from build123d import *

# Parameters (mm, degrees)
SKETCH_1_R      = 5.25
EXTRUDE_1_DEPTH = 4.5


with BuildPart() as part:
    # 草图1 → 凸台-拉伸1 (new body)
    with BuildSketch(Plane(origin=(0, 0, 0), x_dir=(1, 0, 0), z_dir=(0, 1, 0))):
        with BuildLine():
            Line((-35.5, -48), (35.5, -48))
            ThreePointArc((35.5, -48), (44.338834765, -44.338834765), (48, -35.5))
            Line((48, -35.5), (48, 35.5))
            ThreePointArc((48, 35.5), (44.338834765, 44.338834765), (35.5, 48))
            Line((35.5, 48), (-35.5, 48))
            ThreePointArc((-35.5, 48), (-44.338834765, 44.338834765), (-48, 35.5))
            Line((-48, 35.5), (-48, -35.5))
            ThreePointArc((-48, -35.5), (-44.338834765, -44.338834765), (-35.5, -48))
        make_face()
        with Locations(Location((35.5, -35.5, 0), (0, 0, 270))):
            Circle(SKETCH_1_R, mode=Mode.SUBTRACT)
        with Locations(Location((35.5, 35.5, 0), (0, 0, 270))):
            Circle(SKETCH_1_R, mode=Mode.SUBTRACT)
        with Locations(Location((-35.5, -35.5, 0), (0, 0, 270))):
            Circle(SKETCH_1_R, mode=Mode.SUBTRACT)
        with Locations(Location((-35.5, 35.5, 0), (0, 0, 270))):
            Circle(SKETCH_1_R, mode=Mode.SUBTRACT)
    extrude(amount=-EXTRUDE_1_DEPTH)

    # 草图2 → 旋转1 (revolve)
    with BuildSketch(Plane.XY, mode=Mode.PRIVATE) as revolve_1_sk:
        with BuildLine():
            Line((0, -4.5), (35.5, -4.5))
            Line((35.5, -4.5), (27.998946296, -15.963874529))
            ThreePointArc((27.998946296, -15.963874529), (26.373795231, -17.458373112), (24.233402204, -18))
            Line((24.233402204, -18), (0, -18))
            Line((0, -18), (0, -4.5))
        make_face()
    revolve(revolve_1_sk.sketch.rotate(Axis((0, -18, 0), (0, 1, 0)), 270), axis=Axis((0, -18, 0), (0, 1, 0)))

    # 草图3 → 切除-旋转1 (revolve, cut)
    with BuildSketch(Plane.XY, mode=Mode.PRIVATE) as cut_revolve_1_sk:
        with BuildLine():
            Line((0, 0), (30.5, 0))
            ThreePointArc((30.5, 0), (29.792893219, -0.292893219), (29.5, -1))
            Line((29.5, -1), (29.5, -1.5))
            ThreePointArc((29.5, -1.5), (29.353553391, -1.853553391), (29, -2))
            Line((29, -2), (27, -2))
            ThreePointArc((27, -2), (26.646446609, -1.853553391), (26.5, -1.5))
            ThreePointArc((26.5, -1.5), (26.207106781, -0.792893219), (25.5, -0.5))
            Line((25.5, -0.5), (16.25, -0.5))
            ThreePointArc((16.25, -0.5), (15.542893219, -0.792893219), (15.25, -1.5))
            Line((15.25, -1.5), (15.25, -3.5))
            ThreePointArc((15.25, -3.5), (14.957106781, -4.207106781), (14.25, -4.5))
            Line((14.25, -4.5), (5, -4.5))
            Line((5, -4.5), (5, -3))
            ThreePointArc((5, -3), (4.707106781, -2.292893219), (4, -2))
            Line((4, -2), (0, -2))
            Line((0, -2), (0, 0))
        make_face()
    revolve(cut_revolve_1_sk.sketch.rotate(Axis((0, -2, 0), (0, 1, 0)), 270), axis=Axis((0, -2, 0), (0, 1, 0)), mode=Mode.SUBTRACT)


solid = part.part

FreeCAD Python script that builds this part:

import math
import FreeCAD as App
import Part
import Sketcher

V = App.Vector

doc = App.newDocument("Part")
params = doc.addObject("Spreadsheet::Sheet", "Params")
for row, (alias, value) in enumerate([
    ("sketch1_diameter", "10.5 mm"),
    ("sketch1_radius", "12.5 mm"),
    ("sketch1_width", "71 mm"),
    ("pad1_length", "4.5 mm"),
    ("sketch2_radius", "4.5 mm"),
    ("sketch2_width", "35.5 mm"),
    ("sketch2_height", "13.5 mm"),
    ("revolution_angle", "360 deg"),
    ("sketch3_radius", "1 mm"),
    ("sketch3_radius2", "0.5 mm"),
    ("sketch3_width", "4 mm"),
    ("sketch3_width2", "2 mm"),
    ("sketch3_width3", "30.5 mm"),
    ("groove_angle", "360 deg"),
], start=1):
    params.set(f"A{row}", alias)
    params.set(f"B{row}", "=" + value)
    params.setAlias(f"B{row}", alias)

body = doc.addObject("PartDesign::Body", "Body")

# Sketch on XZ plane
sketch1 = body.newObject("Sketcher::SketchObject", "Sketch")
sketch1.AttachmentSupport = (doc.getObject("XZ_Plane"), [""])
sketch1.MapMode = "FlatFace"
sketch1.addGeometry([
    Part.LineSegment(V(-36, 48, 0), V(36, 48, 0)),  # 0
    Part.ArcOfCircle(Part.Circle(V(36, 36, 0), V(0, 0, 1), 12), math.radians(0), math.radians(90)),  # 1
    Part.LineSegment(V(48, 36, 0), V(48, -36, 0)),  # 2
    Part.ArcOfCircle(Part.Circle(V(36, -36, 0), V(0, 0, 1), 12), math.radians(-90), math.radians(0)),  # 3
    Part.LineSegment(V(36, -48, 0), V(-36, -48, 0)),  # 4
    Part.ArcOfCircle(Part.Circle(V(-36, -36, 0), V(0, 0, 1), 12), math.radians(180), math.radians(270)),  # 5
    Part.LineSegment(V(-48, -36, 0), V(-48, 36, 0)),  # 6
    Part.ArcOfCircle(Part.Circle(V(-36, 36, 0), V(0, 0, 1), 12), math.radians(90), math.radians(180)),  # 7
    Part.Circle(V(-36, 36, 0), V(0, 0, 1), 5),  # 8
    Part.Circle(V(36, 36, 0), V(0, 0, 1), 5),  # 9
    Part.Circle(V(-36, -36, 0), V(0, 0, 1), 5),  # 10
    Part.Circle(V(36, -36, 0), V(0, 0, 1), 5),  # 11
], False)
sketch1.addConstraint([
    Sketcher.Constraint("Tangent", 0, 2, 1, 2),
    Sketcher.Constraint("Tangent", 1, 1, 2, 1),
    Sketcher.Constraint("Tangent", 2, 2, 3, 2),
    Sketcher.Constraint("Tangent", 3, 1, 4, 1),
    Sketcher.Constraint("Tangent", 4, 2, 5, 2),
    Sketcher.Constraint("Tangent", 5, 1, 6, 1),
    Sketcher.Constraint("Tangent", 6, 2, 7, 2),
    Sketcher.Constraint("Tangent", 7, 1, 0, 1),
    Sketcher.Constraint("Horizontal", 0),
    Sketcher.Constraint("Vertical", 2),
    Sketcher.Constraint("Horizontal", 4),
    Sketcher.Constraint("Vertical", 6),
    Sketcher.Constraint("Coincident", 8, 3, 7, 3),
    Sketcher.Constraint("Coincident", 9, 3, 1, 3),
    Sketcher.Constraint("Coincident", 10, 3, 5, 3),
    Sketcher.Constraint("Coincident", 11, 3, 3, 3),
    Sketcher.Constraint("Equal", 1, 3),
    Sketcher.Constraint("Equal", 3, 5),
    Sketcher.Constraint("Equal", 5, 7),
    Sketcher.Constraint("Equal", 8, 9),
    Sketcher.Constraint("Equal", 9, 10),
    Sketcher.Constraint("Equal", 10, 11),
    Sketcher.Constraint("Symmetric", 1, 3, 5, 3, -1, 1),
    Sketcher.Constraint("Equal", 4, 2),
    Sketcher.Constraint("Diameter", 8, 10.5),
    Sketcher.Constraint("Radius", 1, 12.5),
    Sketcher.Constraint("DistanceX", 0, 1, 0, 2, 71.0),
])
sketch1.setExpression("Constraints[24]", "Params.sketch1_diameter")
sketch1.setExpression("Constraints[25]", "Params.sketch1_radius")
sketch1.setExpression("Constraints[26]", "Params.sketch1_width")
pad1 = body.newObject("PartDesign::Pad", "Pad")
pad1.Profile = sketch1
pad1.setExpression("Length", "Params.pad1_length")

# Sketch on XY plane
sketch2 = body.newObject("Sketcher::SketchObject", "Sketch001")
sketch2.AttachmentSupport = (doc.getObject("XY_Plane"), [""])
sketch2.MapMode = "FlatFace"
sketch2.addGeometry([
    Part.LineSegment(V(35.5, -4.5, 0), V(0, -4.5, 0)),  # 0
    Part.LineSegment(V(0, -4.5, 0), V(0, -18, 0)),  # 1
    Part.LineSegment(V(0, -18, 0), V(24.2, -18, 0)),  # 2
    Part.ArcOfCircle(Part.Circle(V(24.2, -13.5, 0), V(0, 0, 1), 4.5), math.radians(-90), math.radians(-33)),  # 3
    Part.LineSegment(V(28, -16, 0), V(35.5, -4.5, 0)),  # 4
], False)
sketch2.addConstraint([
    Sketcher.Constraint("Coincident", 0, 2, 1, 1),
    Sketcher.Constraint("Coincident", 1, 2, 2, 1),
    Sketcher.Constraint("Tangent", 2, 2, 3, 1),
    Sketcher.Constraint("Tangent", 3, 2, 4, 1),
    Sketcher.Constraint("Coincident", 4, 2, 0, 1),
    Sketcher.Constraint("Horizontal", 0),
    Sketcher.Constraint("Vertical", 1),
    Sketcher.Constraint("Horizontal", 2),
    Sketcher.Constraint("PointOnObject", 0, 2, -2),
    Sketcher.Constraint("Radius", 3, 4.5),
    Sketcher.Constraint("DistanceX", 0, 2, 0, 1, 35.5),
    Sketcher.Constraint("DistanceY", 1, 2, 1, 1, 13.5),
    Sketcher.Constraint("DistanceY", 1, 2, -1, 1, 18.0),
    Sketcher.Constraint("DistanceX", 2, 1, 2, 2, 24.233402),
])
sketch2.setExpression("Constraints[9]", "Params.sketch2_radius")
sketch2.setExpression("Constraints[10]", "Params.sketch2_width")
sketch2.setExpression("Constraints[11]", "Params.sketch2_height")
revolution = body.newObject("PartDesign::Revolution", "Revolution")
revolution.Profile = sketch2
revolution.ReferenceAxis = (sketch2, ["V_Axis"])
revolution.setExpression("Angle", "Params.revolution_angle")

# Sketch on XY plane
sketch3 = body.newObject("Sketcher::SketchObject", "Sketch002")
sketch3.AttachmentSupport = (doc.getObject("XY_Plane"), [""])
sketch3.MapMode = "FlatFace"
sketch3.addGeometry([
    Part.LineSegment(V(30.5, 0, 0), V(0, 0, 0)),  # 0
    Part.LineSegment(V(0, 0, 0), V(0, -2, 0)),  # 1
    Part.LineSegment(V(0, -2, 0), V(4, -2, 0)),  # 2
    Part.ArcOfCircle(Part.Circle(V(4, -3, 0), V(0, 0, 1), 1), math.radians(0), math.radians(90)),  # 3
    Part.LineSegment(V(5, -3, 0), V(5, -4.5, 0)),  # 4
    Part.LineSegment(V(5, -4.5, 0), V(14.25, -4.5, 0)),  # 5
    Part.ArcOfCircle(Part.Circle(V(14.25, -3.5, 0), V(0, 0, 1), 1), math.radians(-90), math.radians(0)),  # 6
    Part.LineSegment(V(15.25, -3.5, 0), V(15.25, -1.5, 0)),  # 7
    Part.ArcOfCircle(Part.Circle(V(16.25, -1.5, 0), V(0, 0, 1), 1), math.radians(90), math.radians(180)),  # 8
    Part.LineSegment(V(16.25, -0.5, 0), V(25.5, -0.5, 0)),  # 9
    Part.ArcOfCircle(Part.Circle(V(25.5, -1.5, 0), V(0, 0, 1), 1), math.radians(0), math.radians(90)),  # 10
    Part.ArcOfCircle(Part.Circle(V(27, -1.5, 0), V(0, 0, 1), 0.5), math.radians(180), math.radians(270)),  # 11
    Part.LineSegment(V(27, -2, 0), V(29, -2, 0)),  # 12
    Part.ArcOfCircle(Part.Circle(V(29, -1.5, 0), V(0, 0, 1), 0.5), math.radians(-90), math.radians(0)),  # 13
    Part.LineSegment(V(29.5, -1.5, 0), V(29.5, -1, 0)),  # 14
    Part.ArcOfCircle(Part.Circle(V(30.5, -1, 0), V(0, 0, 1), 1), math.radians(90), math.radians(180)),  # 15
], False)
sketch3.addConstraint([
    Sketcher.Constraint("Coincident", 0, 2, 1, 1),
    Sketcher.Constraint("Coincident", 1, 2, 2, 1),
    Sketcher.Constraint("Tangent", 2, 2, 3, 2),
    Sketcher.Constraint("Tangent", 3, 1, 4, 1),
    Sketcher.Constraint("Coincident", 4, 2, 5, 1),
    Sketcher.Constraint("Tangent", 5, 2, 6, 1),
    Sketcher.Constraint("Tangent", 6, 2, 7, 1),
    Sketcher.Constraint("Tangent", 7, 2, 8, 2),
    Sketcher.Constraint("Tangent", 8, 1, 9, 1),
    Sketcher.Constraint("Tangent", 9, 2, 10, 2),
    Sketcher.Constraint("Tangent", 10, 1, 11, 1),
    Sketcher.Constraint("Tangent", 11, 2, 12, 1),
    Sketcher.Constraint("Tangent", 12, 2, 13, 1),
    Sketcher.Constraint("Tangent", 13, 2, 14, 1),
    Sketcher.Constraint("Tangent", 14, 2, 15, 2),
    Sketcher.Constraint("Tangent", 15, 1, 0, 1),
    Sketcher.Constraint("Horizontal", 0),
    Sketcher.Constraint("Vertical", 1),
    Sketcher.Constraint("Horizontal", 2),
    Sketcher.Constraint("Vertical", 4),
    Sketcher.Constraint("Horizontal", 5),
    Sketcher.Constraint("Vertical", 7),
    Sketcher.Constraint("Horizontal", 9),
    Sketcher.Constraint("Horizontal", 12),
    Sketcher.Constraint("Vertical", 14),
    Sketcher.Constraint("Coincident", 0, 2, -1, 1),
    Sketcher.Constraint("Equal", 3, 6),
    Sketcher.Constraint("Equal", 6, 8),
    Sketcher.Constraint("Equal", 8, 10),
    Sketcher.Constraint("Equal", 11, 13),
    Sketcher.Constraint("Equal", 10, 15),
    Sketcher.Constraint("Horizontal", 10, 3, 11, 3),
    Sketcher.Constraint("Horizontal", 2, 2, 11, 2),
    Sketcher.Constraint("Equal", 5, 9),
    Sketcher.Constraint("Equal", 12, 1),
    Sketcher.Constraint("Equal", 1, 7),
    Sketcher.Constraint("Radius", 3, 1.0),
    Sketcher.Constraint("Radius", 11, 0.5),
    Sketcher.Constraint("DistanceX", 2, 1, 2, 2, 4.0),
    Sketcher.Constraint("DistanceX", 12, 1, 12, 2, 2.0),
    Sketcher.Constraint("DistanceX", 0, 2, 0, 1, 30.5),
])
sketch3.setExpression("Constraints[36]", "Params.sketch3_radius")
sketch3.setExpression("Constraints[37]", "Params.sketch3_radius2")
sketch3.setExpression("Constraints[38]", "Params.sketch3_width")
sketch3.setExpression("Constraints[39]", "Params.sketch3_width2")
sketch3.setExpression("Constraints[40]", "Params.sketch3_width3")
groove = body.newObject("PartDesign::Groove", "Groove")
groove.Profile = sketch3
groove.ReferenceAxis = (sketch3, ["V_Axis"])
groove.setExpression("Angle", "Params.groove_angle")

doc.recompute()
